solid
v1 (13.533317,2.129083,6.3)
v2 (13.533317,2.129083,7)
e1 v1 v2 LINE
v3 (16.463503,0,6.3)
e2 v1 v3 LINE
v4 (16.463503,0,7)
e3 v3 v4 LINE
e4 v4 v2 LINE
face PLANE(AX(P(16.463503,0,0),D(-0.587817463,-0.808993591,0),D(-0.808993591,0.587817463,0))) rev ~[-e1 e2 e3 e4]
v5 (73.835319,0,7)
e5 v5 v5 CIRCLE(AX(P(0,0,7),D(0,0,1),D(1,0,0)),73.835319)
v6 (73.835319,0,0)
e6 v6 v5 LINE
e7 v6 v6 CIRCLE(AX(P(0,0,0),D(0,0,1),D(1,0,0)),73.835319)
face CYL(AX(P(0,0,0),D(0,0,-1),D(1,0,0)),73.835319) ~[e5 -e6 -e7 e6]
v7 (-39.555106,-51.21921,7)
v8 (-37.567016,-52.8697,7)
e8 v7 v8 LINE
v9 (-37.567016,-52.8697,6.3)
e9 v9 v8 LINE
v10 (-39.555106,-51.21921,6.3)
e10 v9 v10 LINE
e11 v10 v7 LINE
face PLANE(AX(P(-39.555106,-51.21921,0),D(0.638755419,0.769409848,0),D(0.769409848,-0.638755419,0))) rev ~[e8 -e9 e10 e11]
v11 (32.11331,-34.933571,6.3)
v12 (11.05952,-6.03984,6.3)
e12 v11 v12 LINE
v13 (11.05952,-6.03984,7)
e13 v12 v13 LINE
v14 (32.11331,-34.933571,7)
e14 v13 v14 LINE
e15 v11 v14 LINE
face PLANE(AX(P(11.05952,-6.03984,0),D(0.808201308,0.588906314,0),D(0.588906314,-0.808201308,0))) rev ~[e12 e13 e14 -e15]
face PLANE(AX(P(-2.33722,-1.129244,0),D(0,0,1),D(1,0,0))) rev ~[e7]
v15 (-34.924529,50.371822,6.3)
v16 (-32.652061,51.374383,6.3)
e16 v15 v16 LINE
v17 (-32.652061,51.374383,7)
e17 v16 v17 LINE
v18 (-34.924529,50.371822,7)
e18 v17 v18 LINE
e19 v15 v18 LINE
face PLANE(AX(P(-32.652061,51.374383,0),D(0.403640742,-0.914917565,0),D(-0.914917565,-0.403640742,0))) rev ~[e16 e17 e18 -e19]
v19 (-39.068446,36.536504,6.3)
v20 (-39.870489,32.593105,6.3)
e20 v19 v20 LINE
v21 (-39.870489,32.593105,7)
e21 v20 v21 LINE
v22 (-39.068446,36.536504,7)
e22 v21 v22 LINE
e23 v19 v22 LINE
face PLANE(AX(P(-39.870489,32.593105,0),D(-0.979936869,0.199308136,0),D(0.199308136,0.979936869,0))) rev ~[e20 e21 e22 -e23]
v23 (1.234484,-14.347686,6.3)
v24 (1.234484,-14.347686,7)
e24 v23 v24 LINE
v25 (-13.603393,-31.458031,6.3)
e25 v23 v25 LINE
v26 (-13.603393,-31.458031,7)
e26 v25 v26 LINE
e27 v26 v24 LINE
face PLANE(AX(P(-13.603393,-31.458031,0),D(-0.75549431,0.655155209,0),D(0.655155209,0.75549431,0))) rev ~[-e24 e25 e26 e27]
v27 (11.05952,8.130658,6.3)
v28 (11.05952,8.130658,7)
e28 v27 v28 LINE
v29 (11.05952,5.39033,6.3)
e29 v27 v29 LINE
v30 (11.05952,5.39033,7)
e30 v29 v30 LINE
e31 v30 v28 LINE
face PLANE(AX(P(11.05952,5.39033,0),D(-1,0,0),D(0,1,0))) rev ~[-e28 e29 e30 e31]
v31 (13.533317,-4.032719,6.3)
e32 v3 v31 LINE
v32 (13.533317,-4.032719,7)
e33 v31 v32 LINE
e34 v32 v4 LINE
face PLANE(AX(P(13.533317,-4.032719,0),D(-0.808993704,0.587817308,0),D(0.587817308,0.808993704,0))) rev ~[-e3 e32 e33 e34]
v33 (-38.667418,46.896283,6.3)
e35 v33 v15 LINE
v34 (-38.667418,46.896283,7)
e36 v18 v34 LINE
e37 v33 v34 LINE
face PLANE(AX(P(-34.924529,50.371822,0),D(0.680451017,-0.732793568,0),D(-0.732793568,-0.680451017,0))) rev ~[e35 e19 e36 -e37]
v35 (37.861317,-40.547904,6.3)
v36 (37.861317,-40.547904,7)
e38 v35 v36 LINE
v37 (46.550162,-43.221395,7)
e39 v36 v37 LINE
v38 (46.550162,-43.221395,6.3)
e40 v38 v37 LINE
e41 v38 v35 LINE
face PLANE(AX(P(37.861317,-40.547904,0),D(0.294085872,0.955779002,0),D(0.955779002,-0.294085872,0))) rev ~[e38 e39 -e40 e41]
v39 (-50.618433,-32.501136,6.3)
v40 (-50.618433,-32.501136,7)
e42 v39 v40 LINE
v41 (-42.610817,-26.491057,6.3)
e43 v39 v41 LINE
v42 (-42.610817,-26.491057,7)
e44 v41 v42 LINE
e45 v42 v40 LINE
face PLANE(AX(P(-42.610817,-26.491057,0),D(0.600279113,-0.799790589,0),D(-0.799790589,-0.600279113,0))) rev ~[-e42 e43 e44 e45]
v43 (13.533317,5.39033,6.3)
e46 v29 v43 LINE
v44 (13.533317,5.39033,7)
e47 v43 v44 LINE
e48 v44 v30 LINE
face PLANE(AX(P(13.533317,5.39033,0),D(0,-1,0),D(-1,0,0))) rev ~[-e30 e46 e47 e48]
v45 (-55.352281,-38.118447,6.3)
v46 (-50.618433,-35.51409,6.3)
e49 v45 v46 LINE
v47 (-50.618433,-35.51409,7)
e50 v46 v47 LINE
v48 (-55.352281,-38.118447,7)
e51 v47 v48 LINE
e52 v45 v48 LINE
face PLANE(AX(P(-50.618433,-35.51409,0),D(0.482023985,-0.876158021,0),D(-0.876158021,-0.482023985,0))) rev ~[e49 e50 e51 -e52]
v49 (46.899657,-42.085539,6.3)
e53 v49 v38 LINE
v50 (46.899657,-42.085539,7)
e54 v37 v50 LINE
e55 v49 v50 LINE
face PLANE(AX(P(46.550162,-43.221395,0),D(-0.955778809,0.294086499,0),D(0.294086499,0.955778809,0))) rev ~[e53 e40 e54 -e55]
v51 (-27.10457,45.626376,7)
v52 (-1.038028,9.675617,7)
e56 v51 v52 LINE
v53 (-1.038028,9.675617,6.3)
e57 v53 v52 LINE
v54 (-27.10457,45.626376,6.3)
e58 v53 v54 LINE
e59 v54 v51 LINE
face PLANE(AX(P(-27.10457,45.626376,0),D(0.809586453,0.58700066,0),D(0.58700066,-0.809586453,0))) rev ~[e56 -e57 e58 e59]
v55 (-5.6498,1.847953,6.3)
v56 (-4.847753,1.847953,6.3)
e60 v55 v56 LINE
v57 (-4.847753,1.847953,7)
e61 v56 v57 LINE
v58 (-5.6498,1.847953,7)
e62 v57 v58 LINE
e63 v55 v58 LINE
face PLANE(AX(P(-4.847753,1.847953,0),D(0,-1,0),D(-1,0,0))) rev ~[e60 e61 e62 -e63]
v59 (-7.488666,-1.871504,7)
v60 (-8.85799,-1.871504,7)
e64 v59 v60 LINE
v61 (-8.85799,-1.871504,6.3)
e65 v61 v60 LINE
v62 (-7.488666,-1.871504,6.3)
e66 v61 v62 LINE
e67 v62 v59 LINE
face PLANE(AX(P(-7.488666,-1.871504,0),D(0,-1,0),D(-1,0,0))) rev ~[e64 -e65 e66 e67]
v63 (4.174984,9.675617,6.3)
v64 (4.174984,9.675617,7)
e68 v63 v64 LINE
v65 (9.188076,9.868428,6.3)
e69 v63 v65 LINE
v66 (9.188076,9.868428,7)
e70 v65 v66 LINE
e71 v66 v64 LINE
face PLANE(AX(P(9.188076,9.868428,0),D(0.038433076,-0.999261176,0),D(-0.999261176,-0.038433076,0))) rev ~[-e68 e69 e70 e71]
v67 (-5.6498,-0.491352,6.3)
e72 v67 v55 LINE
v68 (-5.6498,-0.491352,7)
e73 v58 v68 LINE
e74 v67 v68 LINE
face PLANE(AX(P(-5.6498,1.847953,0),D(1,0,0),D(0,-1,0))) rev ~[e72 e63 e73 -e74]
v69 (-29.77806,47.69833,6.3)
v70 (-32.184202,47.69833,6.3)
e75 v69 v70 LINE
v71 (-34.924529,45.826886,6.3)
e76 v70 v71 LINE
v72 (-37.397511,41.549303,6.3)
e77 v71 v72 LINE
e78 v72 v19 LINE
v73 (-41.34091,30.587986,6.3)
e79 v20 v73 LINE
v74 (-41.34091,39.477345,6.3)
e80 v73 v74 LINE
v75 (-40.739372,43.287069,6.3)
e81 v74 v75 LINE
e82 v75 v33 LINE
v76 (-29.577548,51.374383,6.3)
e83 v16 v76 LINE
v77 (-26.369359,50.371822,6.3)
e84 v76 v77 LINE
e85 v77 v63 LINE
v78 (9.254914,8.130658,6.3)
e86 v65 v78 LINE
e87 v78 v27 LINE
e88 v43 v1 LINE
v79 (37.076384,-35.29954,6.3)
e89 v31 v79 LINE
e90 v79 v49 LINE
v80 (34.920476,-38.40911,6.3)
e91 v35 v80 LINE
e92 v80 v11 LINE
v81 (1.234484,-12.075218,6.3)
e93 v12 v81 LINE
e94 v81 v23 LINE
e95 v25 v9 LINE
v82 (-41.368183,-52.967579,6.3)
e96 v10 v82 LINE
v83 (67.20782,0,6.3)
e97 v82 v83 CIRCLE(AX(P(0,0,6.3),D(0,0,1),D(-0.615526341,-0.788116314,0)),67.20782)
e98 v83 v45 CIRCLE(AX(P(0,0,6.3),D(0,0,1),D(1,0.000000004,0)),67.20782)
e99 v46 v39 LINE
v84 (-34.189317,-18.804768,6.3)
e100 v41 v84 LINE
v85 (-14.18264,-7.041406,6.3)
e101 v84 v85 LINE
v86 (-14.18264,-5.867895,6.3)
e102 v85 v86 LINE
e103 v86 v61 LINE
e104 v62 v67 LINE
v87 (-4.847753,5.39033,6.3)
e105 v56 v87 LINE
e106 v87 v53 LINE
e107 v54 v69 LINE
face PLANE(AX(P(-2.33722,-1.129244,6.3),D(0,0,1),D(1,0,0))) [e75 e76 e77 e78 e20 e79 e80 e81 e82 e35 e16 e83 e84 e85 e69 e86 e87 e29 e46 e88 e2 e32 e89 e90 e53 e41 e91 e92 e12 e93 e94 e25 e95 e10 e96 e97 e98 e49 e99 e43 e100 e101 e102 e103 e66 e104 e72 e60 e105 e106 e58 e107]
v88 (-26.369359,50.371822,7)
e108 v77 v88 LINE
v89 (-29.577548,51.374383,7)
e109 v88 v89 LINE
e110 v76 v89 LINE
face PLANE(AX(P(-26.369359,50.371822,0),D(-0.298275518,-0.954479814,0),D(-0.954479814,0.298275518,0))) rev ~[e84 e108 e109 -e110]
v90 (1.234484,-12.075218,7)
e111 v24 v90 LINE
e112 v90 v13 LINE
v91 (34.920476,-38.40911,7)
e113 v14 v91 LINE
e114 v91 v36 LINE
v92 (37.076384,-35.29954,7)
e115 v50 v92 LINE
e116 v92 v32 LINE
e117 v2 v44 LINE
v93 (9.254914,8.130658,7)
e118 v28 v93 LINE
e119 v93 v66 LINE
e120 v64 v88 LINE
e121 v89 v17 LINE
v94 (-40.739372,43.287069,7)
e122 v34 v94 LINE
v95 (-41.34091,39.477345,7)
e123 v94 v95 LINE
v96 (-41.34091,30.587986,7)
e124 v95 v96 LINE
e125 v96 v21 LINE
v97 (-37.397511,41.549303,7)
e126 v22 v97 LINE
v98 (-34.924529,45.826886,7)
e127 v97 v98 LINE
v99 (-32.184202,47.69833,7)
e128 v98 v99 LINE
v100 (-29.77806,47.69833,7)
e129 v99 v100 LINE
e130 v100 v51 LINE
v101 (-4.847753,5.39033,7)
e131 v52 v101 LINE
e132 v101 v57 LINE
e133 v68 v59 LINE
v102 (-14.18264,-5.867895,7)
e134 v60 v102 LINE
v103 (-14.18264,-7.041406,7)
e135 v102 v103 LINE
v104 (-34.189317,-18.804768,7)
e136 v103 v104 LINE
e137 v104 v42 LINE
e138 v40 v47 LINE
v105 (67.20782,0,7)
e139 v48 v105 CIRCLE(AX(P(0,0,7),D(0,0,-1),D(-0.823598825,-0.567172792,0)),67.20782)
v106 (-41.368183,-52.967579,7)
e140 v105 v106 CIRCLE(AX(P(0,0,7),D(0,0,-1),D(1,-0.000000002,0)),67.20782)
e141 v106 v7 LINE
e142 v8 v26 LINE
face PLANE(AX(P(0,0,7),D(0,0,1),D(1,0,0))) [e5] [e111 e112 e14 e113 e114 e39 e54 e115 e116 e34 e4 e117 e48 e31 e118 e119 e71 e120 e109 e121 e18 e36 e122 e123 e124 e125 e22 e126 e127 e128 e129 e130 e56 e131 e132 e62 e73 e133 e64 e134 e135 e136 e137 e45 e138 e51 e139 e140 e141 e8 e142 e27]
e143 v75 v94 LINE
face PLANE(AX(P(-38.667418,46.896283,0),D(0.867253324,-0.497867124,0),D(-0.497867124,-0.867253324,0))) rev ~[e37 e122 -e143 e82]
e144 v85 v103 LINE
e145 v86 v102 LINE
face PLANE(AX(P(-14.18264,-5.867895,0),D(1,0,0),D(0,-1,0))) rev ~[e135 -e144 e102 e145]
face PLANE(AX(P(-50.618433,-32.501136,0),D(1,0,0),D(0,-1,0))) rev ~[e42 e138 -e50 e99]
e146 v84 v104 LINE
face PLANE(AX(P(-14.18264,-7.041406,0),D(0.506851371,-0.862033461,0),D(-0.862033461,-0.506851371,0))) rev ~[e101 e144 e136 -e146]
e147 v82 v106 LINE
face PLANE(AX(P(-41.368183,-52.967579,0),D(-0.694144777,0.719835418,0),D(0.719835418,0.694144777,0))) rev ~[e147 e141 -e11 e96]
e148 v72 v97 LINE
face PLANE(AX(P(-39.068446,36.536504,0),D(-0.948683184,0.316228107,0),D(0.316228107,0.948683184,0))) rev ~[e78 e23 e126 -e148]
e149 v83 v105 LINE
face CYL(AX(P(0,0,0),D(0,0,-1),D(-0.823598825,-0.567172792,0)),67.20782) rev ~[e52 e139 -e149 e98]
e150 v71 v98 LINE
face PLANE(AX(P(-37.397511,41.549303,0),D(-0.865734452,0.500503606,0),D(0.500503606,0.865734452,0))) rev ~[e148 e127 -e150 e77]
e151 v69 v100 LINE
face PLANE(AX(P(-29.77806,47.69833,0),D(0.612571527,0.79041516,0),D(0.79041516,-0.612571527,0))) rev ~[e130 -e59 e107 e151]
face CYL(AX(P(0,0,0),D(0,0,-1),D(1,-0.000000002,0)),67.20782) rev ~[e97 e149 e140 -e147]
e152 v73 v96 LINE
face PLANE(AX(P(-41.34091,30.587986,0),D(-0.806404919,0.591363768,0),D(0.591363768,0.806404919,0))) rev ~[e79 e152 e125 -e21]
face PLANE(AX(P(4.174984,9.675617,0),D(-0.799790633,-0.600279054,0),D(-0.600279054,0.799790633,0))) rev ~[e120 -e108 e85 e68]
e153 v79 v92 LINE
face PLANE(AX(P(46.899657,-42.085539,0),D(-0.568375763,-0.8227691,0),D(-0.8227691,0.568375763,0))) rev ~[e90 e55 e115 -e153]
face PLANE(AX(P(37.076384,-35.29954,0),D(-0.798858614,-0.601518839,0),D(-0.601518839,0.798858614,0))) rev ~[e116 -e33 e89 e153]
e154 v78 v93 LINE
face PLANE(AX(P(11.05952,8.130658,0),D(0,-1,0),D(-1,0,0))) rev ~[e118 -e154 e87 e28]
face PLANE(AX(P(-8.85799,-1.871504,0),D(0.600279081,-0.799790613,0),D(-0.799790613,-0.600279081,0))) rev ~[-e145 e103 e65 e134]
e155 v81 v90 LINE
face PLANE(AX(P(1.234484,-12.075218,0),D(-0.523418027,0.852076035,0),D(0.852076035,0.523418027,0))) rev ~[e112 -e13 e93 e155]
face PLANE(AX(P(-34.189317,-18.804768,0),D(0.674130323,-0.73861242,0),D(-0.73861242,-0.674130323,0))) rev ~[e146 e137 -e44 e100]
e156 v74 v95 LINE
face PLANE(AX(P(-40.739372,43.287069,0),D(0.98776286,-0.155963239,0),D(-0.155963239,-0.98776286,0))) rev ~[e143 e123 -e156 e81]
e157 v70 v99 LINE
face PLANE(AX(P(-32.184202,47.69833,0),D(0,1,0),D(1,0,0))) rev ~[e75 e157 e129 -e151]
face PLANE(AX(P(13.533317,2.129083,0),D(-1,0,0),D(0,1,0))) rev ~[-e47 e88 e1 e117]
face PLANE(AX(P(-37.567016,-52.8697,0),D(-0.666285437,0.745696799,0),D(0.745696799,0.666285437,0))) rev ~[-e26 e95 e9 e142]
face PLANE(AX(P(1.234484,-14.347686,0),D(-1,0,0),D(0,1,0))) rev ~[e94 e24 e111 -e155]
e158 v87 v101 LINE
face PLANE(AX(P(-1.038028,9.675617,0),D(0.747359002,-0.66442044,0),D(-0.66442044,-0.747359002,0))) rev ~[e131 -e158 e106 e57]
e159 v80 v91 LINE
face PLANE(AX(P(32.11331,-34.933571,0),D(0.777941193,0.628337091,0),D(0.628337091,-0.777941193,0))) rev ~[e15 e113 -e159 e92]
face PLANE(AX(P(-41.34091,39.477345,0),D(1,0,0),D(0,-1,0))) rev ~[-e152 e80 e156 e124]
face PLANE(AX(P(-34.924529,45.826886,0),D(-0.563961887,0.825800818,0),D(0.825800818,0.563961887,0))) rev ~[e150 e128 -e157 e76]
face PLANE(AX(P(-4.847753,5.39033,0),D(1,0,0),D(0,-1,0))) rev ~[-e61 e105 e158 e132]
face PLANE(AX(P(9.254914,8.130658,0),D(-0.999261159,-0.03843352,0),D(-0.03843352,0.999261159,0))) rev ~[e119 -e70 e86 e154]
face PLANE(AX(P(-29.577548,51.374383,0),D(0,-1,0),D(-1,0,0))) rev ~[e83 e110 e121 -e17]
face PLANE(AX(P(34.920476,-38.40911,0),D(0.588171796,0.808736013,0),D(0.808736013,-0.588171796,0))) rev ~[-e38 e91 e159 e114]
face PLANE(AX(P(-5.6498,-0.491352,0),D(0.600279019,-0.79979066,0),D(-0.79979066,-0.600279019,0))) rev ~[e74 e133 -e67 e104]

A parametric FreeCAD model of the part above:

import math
import FreeCAD as App
import Part
import Sketcher
from FreeCAD import Vector
Q = App.Units.Quantity

doc = App.newDocument("Part")
params = doc.addObject("Spreadsheet::Sheet", "Params")
for row, (alias, value) in enumerate([
    ("pad1_length", "7 mm"),
    ("pad2_length", "6.3 mm"),
], start=1):
    params.set(f"A{row}", alias)
    params.set(f"B{row}", "=" + value)
    params.setAlias(f"B{row}", alias)

body = doc.addObject("PartDesign::Body", "Body")

sketch1 = body.newObject("Sketcher::SketchObject", "Sketch")
sketch1.AttachmentSupport = (doc.getObject("XY_Plane"), [""])
sketch1.MapMode = "FlatFace"
sketch1.addGeometry(Part.Circle(Vector(0, 0, 0), Vector(0, 0, 1), 73.835319), False)
sketch1.addGeometry(Part.ArcOfCircle(Part.Circle(Vector(0, 0, 0), Vector(0, 0, 1), 67.20782), math.radians(-127.990175), math.radians(0)), False)
sketch1.addGeometry(Part.LineSegment(Vector(-41.368183, -52.967579, 0), Vector(-39.555106, -51.21921, 0)), False)
sketch1.addGeometry(Part.LineSegment(Vector(-39.555106, -51.21921, 0), Vector(-37.567016, -52.8697, 0)), False)
sketch1.addGeometry(Part.LineSegment(Vector(-37.567016, -52.8697, 0), Vector(-13.603393, -31.458031, 0)), False)
sketch1.addGeometry(Part.LineSegment(Vector(-13.603393, -31.458031, 0), Vector(1.234484, -14.347686, 0)), False)
sketch1.addGeometry(Part.LineSegment(Vector(1.234484, -14.347686, 0), Vector(1.234484, -12.075218, 0)), False)
sketch1.addGeometry(Part.LineSegment(Vector(1.234484, -12.075218, 0), Vector(11.05952, -6.03984, 0)), False)
sketch1.addGeometry(Part.LineSegment(Vector(11.05952, -6.03984, 0), Vector(32.11331, -34.933571, 0)), False)
sketch1.addGeometry(Part.LineSegment(Vector(32.11331, -34.933571, 0), Vector(34.920476, -38.40911, 0)), False)
sketch1.addGeometry(Part.LineSegment(Vector(34.920476, -38.40911, 0), Vector(37.861317, -40.547904, 0)), False)
sketch1.addGeometry(Part.LineSegment(Vector(37.861317, -40.547904, 0), Vector(46.550162, -43.221395, 0)), False)
sketch1.addGeometry(Part.LineSegment(Vector(46.550162, -43.221395, 0), Vector(46.899657, -42.085539, 0)), False)
sketch1.addGeometry(Part.LineSegment(Vector(46.899657, -42.085539, 0), Vector(37.076384, -35.29954, 0)), False)
sketch1.addGeometry(Part.LineSegment(Vector(37.076384, -35.29954, 0), Vector(13.533317, -4.032719, 0)), False)
sketch1.addGeometry(Part.LineSegment(Vector(13.533317, -4.032719, 0), Vector(16.463503, 0, 0)), False)
sketch1.addGeometry(Part.LineSegment(Vector(16.463503, 0, 0), Vector(13.533317, 2.129083, 0)), False)
sketch1.addGeometry(Part.LineSegment(Vector(13.533317, 2.129083, 0), Vector(13.533317, 5.39033, 0)), False)
sketch1.addGeometry(Part.LineSegment(Vector(13.533317, 5.39033, 0), Vector(11.05952, 5.39033, 0)), False)
sketch1.addGeometry(Part.LineSegment(Vector(11.05952, 5.39033, 0), Vector(11.05952, 8.130658, 0)), False)
sketch1.addGeometry(Part.LineSegment(Vector(11.05952, 8.130658, 0), Vector(9.254914, 8.130658, 0)), False)
sketch1.addGeometry(Part.LineSegment(Vector(9.254914, 8.130658, 0), Vector(9.188076, 9.868428, 0)), False)
sketch1.addGeometry(Part.LineSegment(Vector(9.188076, 9.868428, 0), Vector(4.174984, 9.675617, 0)), False)
sketch1.addGeometry(Part.LineSegment(Vector(4.174984, 9.675617, 0), Vector(-26.369359, 50.371822, 0)), False)
sketch1.addGeometry(Part.LineSegment(Vector(-26.369359, 50.371822, 0), Vector(-29.577548, 51.374383, 0)), False)
sketch1.addGeometry(Part.LineSegment(Vector(-29.577548, 51.374383, 0), Vector(-32.652061, 51.374383, 0)), False)
sketch1.addGeometry(Part.LineSegment(Vector(-32.652061, 51.374383, 0), Vector(-34.924529, 50.371822, 0)), False)
sketch1.addGeometry(Part.LineSegment(Vector(-34.924529, 50.371822, 0), Vector(-38.667418, 46.896283, 0)), False)
sketch1.addGeometry(Part.LineSegment(Vector(-38.667418, 46.896283, 0), Vector(-40.739372, 43.287069, 0)), False)
sketch1.addGeometry(Part.LineSegment(Vector(-40.739372, 43.287069, 0), Vector(-41.34091, 39.477345, 0)), False)
sketch1.addGeometry(Part.LineSegment(Vector(-41.34091, 39.477345, 0), Vector(-41.34091, 30.587986, 0)), False)
sketch1.addGeometry(Part.LineSegment(Vector(-41.34091, 30.587986, 0), Vector(-39.870489, 32.593105, 0)), False)
sketch1.addGeometry(Part.LineSegment(Vector(-39.870489, 32.593105, 0), Vector(-39.068446, 36.536504, 0)), False)
sketch1.addGeometry(Part.LineSegment(Vector(-39.068446, 36.536504, 0), Vector(-37.397511, 41.549303, 0)), False)
sketch1.addGeometry(Part.LineSegment(Vector(-37.397511, 41.549303, 0), Vector(-34.924529, 45.826886, 0)), False)
sketch1.addGeometry(Part.LineSegment(Vector(-34.924529, 45.826886, 0), Vector(-32.184202, 47.69833, 0)), False)
sketch1.addGeometry(Part.LineSegment(Vector(-32.184202, 47.69833, 0), Vector(-29.77806, 47.69833, 0)), False)
sketch1.addGeometry(Part.LineSegment(Vector(-29.77806, 47.69833, 0), Vector(-27.10457, 45.626376, 0)), False)
sketch1.addGeometry(Part.LineSegment(Vector(-27.10457, 45.626376, 0), Vector(-1.038028, 9.675617, 0)), False)
sketch1.addGeometry(Part.LineSegment(Vector(-1.038028, 9.675617, 0), Vector(-4.847753, 5.39033, 0)), False)
sketch1.addGeometry(Part.LineSegment(Vector(-4.847753, 5.39033, 0), Vector(-4.847753, 1.847953, 0)), False)
sketch1.addGeometry(Part.LineSegment(Vector(-4.847753, 1.847953, 0), Vector(-5.6498, 1.847953, 0)), False)
sketch1.addGeometry(Part.LineSegment(Vector(-5.6498, 1.847953, 0), Vector(-5.6498, -0.491352, 0)), False)
sketch1.addGeometry(Part.LineSegment(Vector(-5.6498, -0.491352, 0), Vector(-7.488666, -1.871504, 0)), False)
sketch1.addGeometry(Part.LineSegment(Vector(-7.488666, -1.871504, 0), Vector(-8.85799, -1.871504, 0)), False)
sketch1.addGeometry(Part.LineSegment(Vector(-8.85799, -1.871504, 0), Vector(-14.18264, -5.867895, 0)), False)
sketch1.addGeometry(Part.LineSegment(Vector(-14.18264, -5.867895, 0), Vector(-14.18264, -7.041406, 0)), False)
sketch1.addGeometry(Part.LineSegment(Vector(-14.18264, -7.041406, 0), Vector(-34.189317, -18.804768, 0)), False)
sketch1.addGeometry(Part.LineSegment(Vector(-34.189317, -18.804768, 0), Vector(-42.610817, -26.491057, 0)), False)
sketch1.addGeometry(Part.LineSegment(Vector(-42.610817, -26.491057, 0), Vector(-50.618433, -32.501136, 0)), False)
sketch1.addGeometry(Part.LineSegment(Vector(-50.618433, -32.501136, 0), Vector(-50.618433, -35.51409, 0)), False)
sketch1.addGeometry(Part.LineSegment(Vector(-50.618433, -35.51409, 0), Vector(-55.352281, -38.118447, 0)), False)
sketch1.addGeometry(Part.ArcOfCircle(Part.Circle(Vector(0, 0, 0), Vector(0, 0, 1), 67.20782), math.radians(0), math.radians(214.55331)), False)
sketch1.addConstraint(Sketcher.Constraint("Coincident", 1, 1, 2, 1))
sketch1.addConstraint(Sketcher.Constraint("Coincident", 2, 2, 3, 1))
sketch1.addConstraint(Sketcher.Constraint("Coincident", 3, 2, 4, 1))
sketch1.addConstraint(Sketcher.Constraint("Coincident", 4, 2, 5, 1))
sketch1.addConstraint(Sketcher.Constraint("Coincident", 5, 2, 6, 1))
sketch1.addConstraint(Sketcher.Constraint("Coincident", 6, 2, 7, 1))
sketch1.addConstraint(Sketcher.Constraint("Coincident", 7, 2, 8, 1))
sketch1.addConstraint(Sketcher.Constraint("Coincident", 8, 2, 9, 1))
sketch1.addConstraint(Sketcher.Constraint("Coincident", 9, 2, 10, 1))
sketch1.addConstraint(Sketcher.Constraint("Coincident", 10, 2, 11, 1))
sketch1.addConstraint(Sketcher.Constraint("Coincident", 11, 2, 12, 1))
sketch1.addConstraint(Sketcher.Constraint("Coincident", 12, 2, 13, 1))
sketch1.addConstraint(Sketcher.Constraint("Coincident", 13, 2, 14, 1))
sketch1.addConstraint(Sketcher.Constraint("Coincident", 14, 2, 15, 1))
sketch1.addConstraint(Sketcher.Constraint("Coincident", 15, 2, 16, 1))
sketch1.addConstraint(Sketcher.Constraint("Coincident", 16, 2, 17, 1))
sketch1.addConstraint(Sketcher.Constraint("Coincident", 17, 2, 18, 1))
sketch1.addConstraint(Sketcher.Constraint("Coincident", 18, 2, 19, 1))
sketch1.addConstraint(Sketcher.Constraint("Coincident", 19, 2, 20, 1))
sketch1.addConstraint(Sketcher.Constraint("Coincident", 20, 2, 21, 1))
sketch1.addConstraint(Sketcher.Constraint("Coincident", 21, 2, 22, 1))
sketch1.addConstraint(Sketcher.Constraint("Coincident", 22, 2, 23, 1))
sketch1.addConstraint(Sketcher.Constraint("Coincident", 23, 2, 24, 1))
sketch1.addConstraint(Sketcher.Constraint("Coincident", 24, 2, 25, 1))
sketch1.addConstraint(Sketcher.Constraint("Coincident", 25, 2, 26, 1))
sketch1.addConstraint(Sketcher.Constraint("Coincident", 26, 2, 27, 1))
sketch1.addConstraint(Sketcher.Constraint("Coincident", 27, 2, 28, 1))
sketch1.addConstraint(Sketcher.Constraint("Coincident", 28, 2, 29, 1))
sketch1.addConstraint(Sketcher.Constraint("Coincident", 29, 2, 30, 1))
sketch1.addConstraint(Sketcher.Constraint("Coincident", 30, 2, 31, 1))
sketch1.addConstraint(Sketcher.Constraint("Coincident", 31, 2, 32, 1))
sketch1.addConstraint(Sketcher.Constraint("Coincident", 32, 2, 33, 1))
sketch1.addConstraint(Sketcher.Constraint("Coincident", 33, 2, 34, 1))
sketch1.addConstraint(Sketcher.Constraint("Coincident", 34, 2, 35, 1))
sketch1.addConstraint(Sketcher.Constraint("Coincident", 35, 2, 36, 1))
sketch1.addConstraint(Sketcher.Constraint("Coincident", 36, 2, 37, 1))
sketch1.addConstraint(Sketcher.Constraint("Coincident", 37, 2, 38, 1))
sketch1.addConstraint(Sketcher.Constraint("Coincident", 38, 2, 39, 1))
sketch1.addConstraint(Sketcher.Constraint("Coincident", 39, 2, 40, 1))
sketch1.addConstraint(Sketcher.Constraint("Coincident", 40, 2, 41, 1))
sketch1.addConstraint(Sketcher.Constraint("Coincident", 41, 2, 42, 1))
sketch1.addConstraint(Sketcher.Constraint("Coincident", 42, 2, 43, 1))
sketch1.addConstraint(Sketcher.Constraint("Coincident", 43, 2, 44, 1))
sketch1.addConstraint(Sketcher.Constraint("Coincident", 44, 2, 45, 1))
sketch1.addConstraint(Sketcher.Constraint("Coincident", 45, 2, 46, 1))
sketch1.addConstraint(Sketcher.Constraint("Coincident", 46, 2, 47, 1))
sketch1.addConstraint(Sketcher.Constraint("Coincident", 47, 2, 48, 1))
sketch1.addConstraint(Sketcher.Constraint("Coincident", 48, 2, 49, 1))
sketch1.addConstraint(Sketcher.Constraint("Coincident", 49, 2, 50, 1))
sketch1.addConstraint(Sketcher.Constraint("Coincident", 50, 2, 51, 1))
sketch1.addConstraint(Sketcher.Constraint("Coincident", 51, 2, 52, 2))
sketch1.addConstraint(Sketcher.Constraint("Coincident", 52, 1, 1, 2))
sketch1.addConstraint(Sketcher.Constraint("Vertical", 6))
sketch1.addConstraint(Sketcher.Constraint("Vertical", 17))
sketch1.addConstraint(Sketcher.Constraint("Horizontal", 18))
sketch1.addConstraint(Sketcher.Constraint("Vertical", 19))
sketch1.addConstraint(Sketcher.Constraint("Horizontal", 20))
sketch1.addConstraint(Sketcher.Constraint("Horizontal", 25))
sketch1.addConstraint(Sketcher.Constraint("Vertical", 30))
sketch1.addConstraint(Sketcher.Constraint("Horizontal", 36))
sketch1.addConstraint(Sketcher.Constraint("Vertical", 40))
sketch1.addConstraint(Sketcher.Constraint("Horizontal", 41))
sketch1.addConstraint(Sketcher.Constraint("Vertical", 42))
sketch1.addConstraint(Sketcher.Constraint("Horizontal", 44))
sketch1.addConstraint(Sketcher.Constraint("Vertical", 46))
sketch1.addConstraint(Sketcher.Constraint("Vertical", 50))
sketch1.addConstraint(Sketcher.Constraint("Coincident", 0, 3, -1, 1))
sketch1.addConstraint(Sketcher.Constraint("Coincident", 1, 3, -1, 1))
sketch1.addConstraint(Sketcher.Constraint("Coincident", 52, 3, -1, 1))
sketch1.addConstraint(Sketcher.Constraint("PointOnObject", 15, 2, -1))
sketch1.addConstraint(Sketcher.Constraint("PointOnObject", 52, 1, -1))
sketch1.addConstraint(Sketcher.Constraint("Diameter", 0, Q("147.670638 mm")))
sketch1.addConstraint(Sketcher.Constraint("Radius", 1, Q("67.20782 mm")))
sketch1.addConstraint(Sketcher.Constraint("DistanceY", 12, 2, 13, 2, Q("6.785999 mm")))
sketch1.addConstraint(Sketcher.Constraint("DistanceX", 25, 2, 36, 2, Q("2.874001 mm")))
sketch1.addConstraint(Sketcher.Constraint("Distance", 22, Q("5.016799 mm")))
sketch1.addConstraint(Sketcher.Constraint("Distance", 27, Q("5.107699 mm")))
sketch1.addConstraint(Sketcher.Constraint("Distance", 47, Q("23.208701 mm")))
sketch1.addConstraint(Sketcher.Constraint("DistanceX", 36, 1, 36, 2, Q("2.406142 mm")))
sketch1.addConstraint(Sketcher.Constraint("DistanceY", 19, 1, 19, 2, Q("2.740328 mm")))
sketch1.addConstraint(Sketcher.Constraint("DistanceY", 30, 2, 30, 1, Q("8.889359 mm")))
sketch1.addConstraint(Sketcher.Constraint("DistanceY", 46, 2, 46, 1, Q("1.173511 mm")))
sketch1.addConstraint(Sketcher.Constraint("DistanceY", 3, 2, -1, 1, Q("52.8697 mm")))
sketch1.addConstraint(Sketcher.Constraint("DistanceX", 41, 2, -1, 1, Q("5.6498 mm")))
sketch1.addConstraint(Sketcher.Constraint("DistanceX", 3, 2, 5, 2, Q("38.8015 mm")))
sketch1.addConstraint(Sketcher.Constraint("DistanceY", 12, 2, 7, 2, Q("36.045699 mm")))
sketch1.addConstraint(Sketcher.Constraint("DistanceY", 6, 2, 14, 2, Q("8.042499 mm")))
sketch1.addConstraint(Sketcher.Constraint("DistanceY", 14, 2, 16, 2, Q("6.161802 mm")))
sketch1.addConstraint(Sketcher.Constraint("DistanceY", 27, 2, 25, 2, Q("4.4781 mm")))
sketch1.addConstraint(Sketcher.Constraint("DistanceY", 31, 2, 32, 2, Q("3.943399 mm")))
sketch1.addConstraint(Sketcher.Constraint("DistanceX", 29, 2, 33, 2, Q("3.943399 mm")))
sketch1.addConstraint(Sketcher.Constraint("DistanceY", 32, 2, 33, 2, Q("5.012799 mm")))
sketch1.addConstraint(Sketcher.Constraint("DistanceX", 36, 2, 23, 2, Q("3.408701 mm")))
sketch1.addConstraint(Sketcher.Constraint("DistanceX", 48, 2, 47, 2, Q("8.4215 mm")))
sketch1.addConstraint(Sketcher.Constraint("DistanceX", 48, 2, 3, 2, Q("5.043801 mm")))
sketch1.addConstraint(Sketcher.Constraint("Distance", 2, Q("2.518738 mm")))
sketch1.addConstraint(Sketcher.Constraint("Distance", 4, Q("32.13588 mm")))
sketch1.addConstraint(Sketcher.Constraint("Distance", 5, Q("22.647881 mm")))
sketch1.addConstraint(Sketcher.Constraint("Distance", 8, Q("35.750661 mm")))
sketch1.addConstraint(Sketcher.Constraint("Distance", 9, Q("4.467611 mm")))
sketch1.addConstraint(Sketcher.Constraint("Distance", 11, Q("9.090852 mm")))
sketch1.addConstraint(Sketcher.Constraint("Distance", 12, Q("1.188409 mm")))
sketch1.addConstraint(Sketcher.Constraint("Distance", 15, Q("4.984858 mm")))
sketch1.addConstraint(Sketcher.Constraint("Distance", 24, Q("3.361191 mm")))
sketch1.addConstraint(Sketcher.Constraint("Distance", 28, Q("4.161661 mm")))
sketch1.addConstraint(Sketcher.Constraint("Distance", 29, Q("3.856922 mm")))
sketch1.addConstraint(Sketcher.Constraint("Distance", 31, Q("2.486492 mm")))
sketch1.addConstraint(Sketcher.Constraint("Distance", 49, Q("10.012141 mm")))
sketch1.addConstraint(Sketcher.Constraint("Distance", 51, Q("5.402961 mm")))
sketch1.addConstraint(Sketcher.Constraint("DistanceX", 18, 2, 18, 1, Q("2.473797 mm")))
sketch1.addConstraint(Sketcher.Constraint("DistanceX", 20, 2, 20, 1, Q("1.804606 mm")))
sketch1.addConstraint(Sketcher.Constraint("DistanceX", 25, 2, 25, 1, Q("3.074513 mm")))
sketch1.addConstraint(Sketcher.Constraint("DistanceX", 41, 2, 41, 1, Q("0.802047 mm")))
sketch1.addConstraint(Sketcher.Constraint("DistanceX", 44, 2, 44, 1, Q("1.369324 mm")))
sketch1.addConstraint(Sketcher.Constraint("DistanceY", 6, 1, 6, 2, Q("2.272468 mm")))
sketch1.addConstraint(Sketcher.Constraint("DistanceY", 17, 1, 17, 2, Q("3.261247 mm")))
sketch1.addConstraint(Sketcher.Constraint("DistanceY", 40, 2, 40, 1, Q("3.542377 mm")))
sketch1.addConstraint(Sketcher.Constraint("DistanceY", 42, 2, 42, 1, Q("2.339305 mm")))
sketch1.addConstraint(Sketcher.Constraint("DistanceY", 50, 2, 50, 1, Q("3.012954 mm")))
sketch1.addConstraint(Sketcher.Constraint("DistanceY", 1, 1, -1, 1, Q("52.967579 mm")))
sketch1.addConstraint(Sketcher.Constraint("DistanceY", 2, 2, -1, 1, Q("51.21921 mm")))
sketch1.addConstraint(Sketcher.Constraint("DistanceY", 4, 2, -1, 1, Q("31.458031 mm")))
sketch1.addConstraint(Sketcher.Constraint("DistanceX", -1, 1, 7, 2, Q("11.05952 mm")))
sketch1.addConstraint(Sketcher.Constraint("DistanceY", 7, 2, -1, 1, Q("6.03984 mm")))
sketch1.addConstraint(Sketcher.Constraint("DistanceX", -1, 1, 8, 2, Q("32.11331 mm")))
sketch1.addConstraint(Sketcher.Constraint("DistanceY", 9, 2, -1, 1, Q("38.40911 mm")))
sketch1.addConstraint(Sketcher.Constraint("DistanceX", -1, 1, 18, 2, Q("11.05952 mm")))
sketch1.addConstraint(Sketcher.Constraint("DistanceX", 23, 2, -1, 1, Q("26.369359 mm")))
sketch1.addConstraint(Sketcher.Constraint("DistanceX", 26, 2, -1, 1, Q("34.924529 mm")))
sketch1.addConstraint(Sketcher.Constraint("DistanceY", -1, 1, 28, 2, Q("43.287069 mm")))
sketch1.addConstraint(Sketcher.Constraint("DistanceX", 29, 2, -1, 1, Q("41.34091 mm")))
sketch1.addConstraint(Sketcher.Constraint("DistanceX", 31, 2, -1, 1, Q("39.870489 mm")))
sketch1.addConstraint(Sketcher.Constraint("DistanceX", 34, 2, -1, 1, Q("34.924529 mm")))
sketch1.addConstraint(Sketcher.Constraint("DistanceY", -1, 1, 35, 2, Q("47.69833 mm")))
sketch1.addConstraint(Sketcher.Constraint("DistanceX", 37, 2, -1, 1, Q("27.10457 mm")))
sketch1.addConstraint(Sketcher.Constraint("DistanceY", -1, 1, 39, 2, Q("5.39033 mm")))
sketch1.addConstraint(Sketcher.Constraint("DistanceX", 44, 2, -1, 1, Q("8.85799 mm")))
sketch1.addConstraint(Sketcher.Constraint("DistanceX", 45, 2, -1, 1, Q("14.18264 mm")))
sketch1.addConstraint(Sketcher.Constraint("DistanceY", 50, 2, -1, 1, Q("35.51409 mm")))
sketch1.addConstraint(Sketcher.Constraint("DistanceX", 51, 2, -1, 1, Q("55.352281 mm")))
sketch1.addConstraint(Sketcher.Constraint("DistanceX", 2, 2, 3, 2, Q("1.98809 mm")))
sketch1.addConstraint(Sketcher.Constraint("DistanceX", 9, 2, 10, 2, Q("2.940841 mm")))
sketch1.addConstraint(Sketcher.Constraint("DistanceY", 10, 2, 5, 2, Q("26.200218 mm")))
sketch1.addConstraint(Sketcher.Constraint("DistanceY", 11, 2, 10, 2, Q("2.673491 mm")))
sketch1.addConstraint(Sketcher.Constraint("DistanceX", 13, 2, 11, 2, Q("9.473778 mm")))
sketch1.addConstraint(Sketcher.Constraint("DistanceX", 20, 2, 15, 2, Q("7.208589 mm")))
sketch1.addConstraint(Sketcher.Constraint("DistanceY", 20, 2, 21, 2, Q("1.73777 mm")))
sketch1.addConstraint(Sketcher.Constraint("DistanceX", 21, 2, 17, 2, Q("4.345241 mm")))
sketch1.addConstraint(Sketcher.Constraint("DistanceY", 22, 2, 21, 2, Q("0.192811 mm")))
sketch1.addConstraint(Sketcher.Constraint("DistanceY", 26, 2, 25, 2, Q("1.002561 mm")))
sketch1.addConstraint(Sketcher.Constraint("DistanceX", 28, 2, 25, 2, Q("8.087311 mm")))
sketch1.addConstraint(Sketcher.Constraint("DistanceX", 32, 2, 27, 2, Q("0.401028 mm")))
sketch1.addConstraint(Sketcher.Constraint("DistanceY", 37, 2, 34, 2, Q("0.20051 mm")))
sketch1.addConstraint(Sketcher.Constraint("DistanceX", 38, 2, 1, 3, Q("1.038028 mm")))
sketch1.addConstraint(Sketcher.Constraint("DistanceY", 38, 2, 21, 2, Q("0.192811 mm")))
sketch1.addConstraint(Sketcher.Constraint("DistanceY", 45, 2, 44, 2, Q("3.996391 mm")))
sketch1.addConstraint(Sketcher.Constraint("DistanceY", 46, 2, 41, 2, Q("8.889359 mm")))
sketch1.addConstraint(Sketcher.Constraint("Distance", 34, Q("4.940987 mm")))
pad1 = body.newObject("PartDesign::Pad", "Pad")
pad1.Profile = sketch1
pad1.setExpression("Length", "Params.pad1_length")

sketch2 = body.newObject("Sketcher::SketchObject", "Sketch001")
sketch2.AttachmentSupport = (doc.getObject("XY_Plane"), [""])
sketch2.MapMode = "FlatFace"
sketch2.addGeometry(Part.ArcOfCircle(Part.Circle(Vector(0, 0, 0), Vector(0, 0, 1), 67.20782), math.radians(-127.990175), math.radians(0)), False)
sketch2.addGeometry(Part.ArcOfCircle(Part.Circle(Vector(0, 0, 0), Vector(0, 0, 1), 67.20782), math.radians(0), math.radians(214.55331)), False)
sketch2.addGeometry(Part.LineSegment(Vector(-55.352281, -38.118447, 0), Vector(-50.618433, -35.51409, 0)), False)
sketch2.addGeometry(Part.LineSegment(Vector(-50.618433, -35.51409, 0), Vector(-50.618433, -32.501136, 0)), False)
sketch2.addGeometry(Part.LineSegment(Vector(-50.618433, -32.501136, 0), Vector(-42.610817, -26.491057, 0)), False)
sketch2.addGeometry(Part.LineSegment(Vector(-42.610817, -26.491057, 0), Vector(-34.189317, -18.804768, 0)), False)
sketch2.addGeometry(Part.LineSegment(Vector(-34.189317, -18.804768, 0), Vector(-14.18264, -7.041406, 0)), False)
sketch2.addGeometry(Part.LineSegment(Vector(-14.18264, -7.041406, 0), Vector(-14.18264, -5.867895, 0)), False)
sketch2.addGeometry(Part.LineSegment(Vector(-14.18264, -5.867895, 0), Vector(-8.85799, -1.871504, 0)), False)
sketch2.addGeometry(Part.LineSegment(Vector(-8.85799, -1.871504, 0), Vector(-7.488666, -1.871504, 0)), False)
sketch2.addGeometry(Part.LineSegment(Vector(-7.488666, -1.871504, 0), Vector(-5.6498, -0.491352, 0)), False)
sketch2.addGeometry(Part.LineSegment(Vector(-5.6498, -0.491352, 0), Vector(-5.6498, 1.847953, 0)), False)
sketch2.addGeometry(Part.LineSegment(Vector(-5.6498, 1.847953, 0), Vector(-4.847753, 1.847953, 0)), False)
sketch2.addGeometry(Part.LineSegment(Vector(-4.847753, 1.847953, 0), Vector(-4.847753, 5.39033, 0)), False)
sketch2.addGeometry(Part.LineSegment(Vector(-4.847753, 5.39033, 0), Vector(-1.038028, 9.675617, 0)), False)
sketch2.addGeometry(Part.LineSegment(Vector(-1.038028, 9.675617, 0), Vector(-27.10457, 45.626376, 0)), False)
sketch2.addGeometry(Part.LineSegment(Vector(-27.10457, 45.626376, 0), Vector(-29.77806, 47.69833, 0)), False)
sketch2.addGeometry(Part.LineSegment(Vector(-29.77806, 47.69833, 0), Vector(-32.184202, 47.69833, 0)), False)
sketch2.addGeometry(Part.LineSegment(Vector(-32.184202, 47.69833, 0), Vector(-34.924529, 45.826886, 0)), False)
sketch2.addGeometry(Part.LineSegment(Vector(-34.924529, 45.826886, 0), Vector(-37.397511, 41.549303, 0)), False)
sketch2.addGeometry(Part.LineSegment(Vector(-37.397511, 41.549303, 0), Vector(-39.068446, 36.536504, 0)), False)
sketch2.addGeometry(Part.LineSegment(Vector(-39.068446, 36.536504, 0), Vector(-39.870489, 32.593105, 0)), False)
sketch2.addGeometry(Part.LineSegment(Vector(-39.870489, 32.593105, 0), Vector(-41.34091, 30.587986, 0)), False)
sketch2.addGeometry(Part.LineSegment(Vector(-41.34091, 30.587986, 0), Vector(-41.34091, 39.477345, 0)), False)
sketch2.addGeometry(Part.LineSegment(Vector(-41.34091, 39.477345, 0), Vector(-40.739372, 43.287069, 0)), False)
sketch2.addGeometry(Part.LineSegment(Vector(-40.739372, 43.287069, 0), Vector(-38.667418, 46.896283, 0)), False)
sketch2.addGeometry(Part.LineSegment(Vector(-38.667418, 46.896283, 0), Vector(-34.924529, 50.371822, 0)), False)
sketch2.addGeometry(Part.LineSegment(Vector(-34.924529, 50.371822, 0), Vector(-32.652061, 51.374383, 0)), False)
sketch2.addGeometry(Part.LineSegment(Vector(-32.652061, 51.374383, 0), Vector(-29.577548, 51.374383, 0)), False)
sketch2.addGeometry(Part.LineSegment(Vector(-29.577548, 51.374383, 0), Vector(-26.369359, 50.371822, 0)), False)
sketch2.addGeometry(Part.LineSegment(Vector(-26.369359, 50.371822, 0), Vector(4.174984, 9.675617, 0)), False)
sketch2.addGeometry(Part.LineSegment(Vector(4.174984, 9.675617, 0), Vector(9.188076, 9.868428, 0)), False)
sketch2.addGeometry(Part.LineSegment(Vector(9.188076, 9.868428, 0), Vector(9.254914, 8.130658, 0)), False)
sketch2.addGeometry(Part.LineSegment(Vector(9.254914, 8.130658, 0), Vector(11.05952, 8.130658, 0)), False)
sketch2.addGeometry(Part.LineSegment(Vector(11.05952, 8.130658, 0), Vector(11.05952, 5.39033, 0)), False)
sketch2.addGeometry(Part.LineSegment(Vector(11.05952, 5.39033, 0), Vector(13.533317, 5.39033, 0)), False)
sketch2.addGeometry(Part.LineSegment(Vector(13.533317, 5.39033, 0), Vector(13.533317, 2.129083, 0)), False)
sketch2.addGeometry(Part.LineSegment(Vector(13.533317, 2.129083, 0), Vector(16.463503, 0, 0)), False)
sketch2.addGeometry(Part.LineSegment(Vector(16.463503, 0, 0), Vector(13.533317, -4.032719, 0)), False)
sketch2.addGeometry(Part.LineSegment(Vector(13.533317, -4.032719, 0), Vector(37.076384, -35.29954, 0)), False)
sketch2.addGeometry(Part.LineSegment(Vector(37.076384, -35.29954, 0), Vector(46.899657, -42.085539, 0)), False)
sketch2.addGeometry(Part.LineSegment(Vector(46.899657, -42.085539, 0), Vector(46.550162, -43.221395, 0)), False)
sketch2.addGeometry(Part.LineSegment(Vector(46.550162, -43.221395, 0), Vector(37.861317, -40.547904, 0)), False)
sketch2.addGeometry(Part.LineSegment(Vector(37.861317, -40.547904, 0), Vector(34.920476, -38.40911, 0)), False)
sketch2.addGeometry(Part.LineSegment(Vector(34.920476, -38.40911, 0), Vector(32.11331, -34.933571, 0)), False)
sketch2.addGeometry(Part.LineSegment(Vector(32.11331, -34.933571, 0), Vector(11.05952, -6.03984, 0)), False)
sketch2.addGeometry(Part.LineSegment(Vector(11.05952, -6.03984, 0), Vector(1.234484, -12.075218, 0)), False)
sketch2.addGeometry(Part.LineSegment(Vector(1.234484, -12.075218, 0), Vector(1.234484, -14.347686, 0)), False)
sketch2.addGeometry(Part.LineSegment(Vector(1.234484, -14.347686, 0), Vector(-13.603393, -31.458031, 0)), False)
sketch2.addGeometry(Part.LineSegment(Vector(-13.603393, -31.458031, 0), Vector(-37.567016, -52.8697, 0)), False)
sketch2.addGeometry(Part.LineSegment(Vector(-37.567016, -52.8697, 0), Vector(-39.555106, -51.21921, 0)), False)
sketch2.addGeometry(Part.LineSegment(Vector(-39.555106, -51.21921, 0), Vector(-41.368183, -52.967579, 0)), False)
sketch2.addConstraint(Sketcher.Constraint("Tangent", 0, 2, 1, 1))
sketch2.addConstraint(Sketcher.Constraint("Coincident", 1, 2, 2, 1))
sketch2.addConstraint(Sketcher.Constraint("Coincident", 2, 2, 3, 1))
sketch2.addConstraint(Sketcher.Constraint("Coincident", 3, 2, 4, 1))
sketch2.addConstraint(Sketcher.Constraint("Coincident", 4, 2, 5, 1))
sketch2.addConstraint(Sketcher.Constraint("Coincident", 5, 2, 6, 1))
sketch2.addConstraint(Sketcher.Constraint("Coincident", 6, 2, 7, 1))
sketch2.addConstraint(Sketcher.Constraint("Coincident", 7, 2, 8, 1))
sketch2.addConstraint(Sketcher.Constraint("Coincident", 8, 2, 9, 1))
sketch2.addConstraint(Sketcher.Constraint("Coincident", 9, 2, 10, 1))
sketch2.addConstraint(Sketcher.Constraint("Coincident", 10, 2, 11, 1))
sketch2.addConstraint(Sketcher.Constraint("Coincident", 11, 2, 12, 1))
sketch2.addConstraint(Sketcher.Constraint("Coincident", 12, 2, 13, 1))
sketch2.addConstraint(Sketcher.Constraint("Coincident", 13, 2, 14, 1))
sketch2.addConstraint(Sketcher.Constraint("Coincident", 14, 2, 15, 1))
sketch2.addConstraint(Sketcher.Constraint("Coincident", 15, 2, 16, 1))
sketch2.addConstraint(Sketcher.Constraint("Coincident", 16, 2, 17, 1))
sketch2.addConstraint(Sketcher.Constraint("Coincident", 17, 2, 18, 1))
sketch2.addConstraint(Sketcher.Constraint("Coincident", 18, 2, 19, 1))
sketch2.addConstraint(Sketcher.Constraint("Coincident", 19, 2, 20, 1))
sketch2.addConstraint(Sketcher.Constraint("Coincident", 20, 2, 21, 1))
sketch2.addConstraint(Sketcher.Constraint("Coincident", 21, 2, 22, 1))
sketch2.addConstraint(Sketcher.Constraint("Coincident", 22, 2, 23, 1))
sketch2.addConstraint(Sketcher.Constraint("Coincident", 23, 2, 24, 1))
sketch2.addConstraint(Sketcher.Constraint("Coincident", 24, 2, 25, 1))
sketch2.addConstraint(Sketcher.Constraint("Coincident", 25, 2, 26, 1))
sketch2.addConstraint(Sketcher.Constraint("Coincident", 26, 2, 27, 1))
sketch2.addConstraint(Sketcher.Constraint("Coincident", 27, 2, 28, 1))
sketch2.addConstraint(Sketcher.Constraint("Coincident", 28, 2, 29, 1))
sketch2.addConstraint(Sketcher.Constraint("Coincident", 29, 2, 30, 1))
sketch2.addConstraint(Sketcher.Constraint("Coincident", 30, 2, 31, 1))
sketch2.addConstraint(Sketcher.Constraint("Coincident", 31, 2, 32, 1))
sketch2.addConstraint(Sketcher.Constraint("Coincident", 32, 2, 33, 1))
sketch2.addConstraint(Sketcher.Constraint("Coincident", 33, 2, 34, 1))
sketch2.addConstraint(Sketcher.Constraint("Coincident", 34, 2, 35, 1))
sketch2.addConstraint(Sketcher.Constraint("Coincident", 35, 2, 36, 1))
sketch2.addConstraint(Sketcher.Constraint("Coincident", 36, 2, 37, 1))
sketch2.addConstraint(Sketcher.Constraint("Coincident", 37, 2, 38, 1))
sketch2.addConstraint(Sketcher.Constraint("Coincident", 38, 2, 39, 1))
sketch2.addConstraint(Sketcher.Constraint("Coincident", 39, 2, 40, 1))
sketch2.addConstraint(Sketcher.Constraint("Coincident", 40, 2, 41, 1))
sketch2.addConstraint(Sketcher.Constraint("Coincident", 41, 2, 42, 1))
sketch2.addConstraint(Sketcher.Constraint("Coincident", 42, 2, 43, 1))
sketch2.addConstraint(Sketcher.Constraint("Coincident", 43, 2, 44, 1))
sketch2.addConstraint(Sketcher.Constraint("Coincident", 44, 2, 45, 1))
sketch2.addConstraint(Sketcher.Constraint("Coincident", 45, 2, 46, 1))
sketch2.addConstraint(Sketcher.Constraint("Coincident", 46, 2, 47, 1))
sketch2.addConstraint(Sketcher.Constraint("Coincident", 47, 2, 48, 1))
sketch2.addConstraint(Sketcher.Constraint("Coincident", 48, 2, 49, 1))
sketch2.addConstraint(Sketcher.Constraint("Coincident", 49, 2, 50, 1))
sketch2.addConstraint(Sketcher.Constraint("Coincident", 50, 2, 51, 1))
sketch2.addConstraint(Sketcher.Constraint("Coincident", 51, 2, 0, 1))
sketch2.addConstraint(Sketcher.Constraint("Vertical", 3))
sketch2.addConstraint(Sketcher.Constraint("Vertical", 7))
sketch2.addConstraint(Sketcher.Constraint("Horizontal", 9))
sketch2.addConstraint(Sketcher.Constraint("Vertical", 11))
sketch2.addConstraint(Sketcher.Constraint("Horizontal", 12))
sketch2.addConstraint(Sketcher.Constraint("Vertical", 13))
sketch2.addConstraint(Sketcher.Constraint("Horizontal", 17))
sketch2.addConstraint(Sketcher.Constraint("Vertical", 23))
sketch2.addConstraint(Sketcher.Constraint("Horizontal", 28))
sketch2.addConstraint(Sketcher.Constraint("Horizontal", 33))
sketch2.addConstraint(Sketcher.Constraint("Vertical", 34))
sketch2.addConstraint(Sketcher.Constraint("Horizontal", 35))
sketch2.addConstraint(Sketcher.Constraint("Vertical", 36))
sketch2.addConstraint(Sketcher.Constraint("Vertical", 47))
sketch2.addConstraint(Sketcher.Constraint("Coincident", 0, 3, -1, 1))
sketch2.addConstraint(Sketcher.Constraint("Equal", 0, 1))
sketch2.addConstraint(Sketcher.Constraint("PointOnObject", 0, 2, -1))
sketch2.addConstraint(Sketcher.Constraint("PointOnObject", 37, 2, -1))
sketch2.addConstraint(Sketcher.Constraint("Parallel", 4, 8))
sketch2.addConstraint(Sketcher.Constraint("Parallel", 8, 10))
sketch2.addConstraint(Sketcher.Constraint("Perpendicular", 10, 30))
sketch2.addConstraint(Sketcher.Constraint("Perpendicular", 31, 32))
sketch2.addConstraint(Sketcher.Constraint("Perpendicular", 37, 38))
sketch2.addConstraint(Sketcher.Constraint("Perpendicular", 41, 42))
sketch2.addConstraint(Sketcher.Constraint("Horizontal", 26, 2, 29, 2))
sketch2.addConstraint(Sketcher.Constraint("Horizontal", 14, 2, 30, 2))
sketch2.addConstraint(Sketcher.Constraint("Horizontal", 13, 2, 34, 2))
sketch2.addConstraint(Sketcher.Constraint("Vertical", 18, 2, 26, 2))
sketch2.addConstraint(Sketcher.Constraint("Vertical", 36, 2, 38, 2))
sketch2.addConstraint(Sketcher.Constraint("Vertical", 34, 2, 45, 2))
sketch2.addConstraint(Sketcher.Constraint("Radius", 0, Q("67.20782 mm")))
sketch2.addConstraint(Sketcher.Constraint("DistanceY", 13, 2, 16, 2, Q("42.308 mm")))
sketch2.addConstraint(Sketcher.Constraint("DistanceX", 27, 2, 16, 2, Q("2.874001 mm")))
sketch2.addConstraint(Sketcher.Constraint("DistanceY", 40, 2, 39, 2, Q("6.785999 mm")))
sketch2.addConstraint(Sketcher.Constraint("DistanceX", 38, 2, 42, 2, Q("24.328 mm")))
sketch2.addConstraint(Sketcher.Constraint("Distance", 6, Q("23.208701 mm")))
sketch2.addConstraint(Sketcher.Constraint("Distance", 26, Q("5.107699 mm")))
sketch2.addConstraint(Sketcher.Constraint("Distance", 31, Q("5.016799 mm")))
sketch2.addConstraint(Sketcher.Constraint("DistanceX", 17, 2, 17, 1, Q("2.406142 mm")))
sketch2.addConstraint(Sketcher.Constraint("DistanceY", 7, 1, 7, 2, Q("1.173511 mm")))
sketch2.addConstraint(Sketcher.Constraint("DistanceY", 23, 1, 23, 2, Q("8.889359 mm")))
sketch2.addConstraint(Sketcher.Constraint("DistanceY", 34, 2, 34, 1, Q("2.740328 mm")))
sketch2.addConstraint(Sketcher.Constraint("DistanceX", 10, 2, -1, 1, Q("5.6498 mm")))
sketch2.addConstraint(Sketcher.Constraint("DistanceY", 49, 2, -1, 1, Q("52.8697 mm")))
sketch2.addConstraint(Sketcher.Constraint("DistanceX", 1, 2, 0, 2, Q("122.560101 mm")))
sketch2.addConstraint(Sketcher.Constraint("DistanceX", 4, 2, 5, 2, Q("8.4215 mm")))
sketch2.addConstraint(Sketcher.Constraint("DistanceX", 17, 2, 11, 2, Q("26.534402 mm")))
sketch2.addConstraint(Sketcher.Constraint("DistanceX", 18, 2, 14, 2, Q("33.886501 mm")))
sketch2.addConstraint(Sketcher.Constraint("DistanceY", 20, 2, 19, 2, Q("5.012799 mm")))
sketch2.addConstraint(Sketcher.Constraint("DistanceY", 21, 2, 20, 2, Q("3.943399 mm")))
sketch2.addConstraint(Sketcher.Constraint("DistanceX", 22, 2, 19, 2, Q("3.943399 mm")))
sketch2.addConstraint(Sketcher.Constraint("DistanceY", 22, 2, 18, 2, Q("15.2389 mm")))
sketch2.addConstraint(Sketcher.Constraint("DistanceY", 25, 2, 27, 2, Q("4.4781 mm")))
sketch2.addConstraint(Sketcher.Constraint("DistanceX", 16, 2, 29, 2, Q("3.408701 mm")))
sketch2.addConstraint(Sketcher.Constraint("DistanceY", 38, 2, 36, 2, Q("6.161802 mm")))
sketch2.addConstraint(Sketcher.Constraint("DistanceX", 4, 2, 49, 2, Q("5.043801 mm")))
sketch2.addConstraint(Sketcher.Constraint("Distance", 2, Q("5.402961 mm")))
sketch2.addConstraint(Sketcher.Constraint("Distance", 4, Q("10.012141 mm")))
sketch2.addConstraint(Sketcher.Constraint("Distance", 22, Q("2.486492 mm")))
sketch2.addConstraint(Sketcher.Constraint("Distance", 24, Q("3.856922 mm")))
sketch2.addConstraint(Sketcher.Constraint("Distance", 25, Q("4.161661 mm")))
sketch2.addConstraint(Sketcher.Constraint("Distance", 29, Q("3.361191 mm")))
sketch2.addConstraint(Sketcher.Constraint("Distance", 38, Q("4.984858 mm")))
sketch2.addConstraint(Sketcher.Constraint("Distance", 41, Q("1.188409 mm")))
sketch2.addConstraint(Sketcher.Constraint("Distance", 42, Q("9.090852 mm")))
sketch2.addConstraint(Sketcher.Constraint("Distance", 44, Q("4.467611 mm")))
sketch2.addConstraint(Sketcher.Constraint("Distance", 45, Q("35.750661 mm")))
sketch2.addConstraint(Sketcher.Constraint("Distance", 48, Q("22.647881 mm")))
sketch2.addConstraint(Sketcher.Constraint("Distance", 49, Q("32.13588 mm")))
sketch2.addConstraint(Sketcher.Constraint("Distance", 51, Q("2.518738 mm")))
sketch2.addConstraint(Sketcher.Constraint("DistanceX", 9, 1, 9, 2, Q("1.369324 mm")))
sketch2.addConstraint(Sketcher.Constraint("DistanceX", 12, 1, 12, 2, Q("0.802047 mm")))
sketch2.addConstraint(Sketcher.Constraint("DistanceX", 28, 1, 28, 2, Q("3.074513 mm")))
sketch2.addConstraint(Sketcher.Constraint("DistanceX", 33, 1, 33, 2, Q("1.804606 mm")))
sketch2.addConstraint(Sketcher.Constraint("DistanceX", 35, 1, 35, 2, Q("2.473797 mm")))
sketch2.addConstraint(Sketcher.Constraint("DistanceY", 3, 1, 3, 2, Q("3.012954 mm")))
sketch2.addConstraint(Sketcher.Constraint("DistanceY", 11, 1, 11, 2, Q("2.339305 mm")))
sketch2.addConstraint(Sketcher.Constraint("DistanceY", 13, 1, 13, 2, Q("3.542377 mm")))
sketch2.addConstraint(Sketcher.Constraint("DistanceY", 36, 2, 36, 1, Q("3.261247 mm")))
sketch2.addConstraint(Sketcher.Constraint("DistanceY", 47, 2, 47, 1, Q("2.272468 mm")))
sketch2.addConstraint(Sketcher.Constraint("DistanceY", 2, 2, -1, 1, Q("35.51409 mm")))
sketch2.addConstraint(Sketcher.Constraint("DistanceX", 6, 2, -1, 1, Q("14.18264 mm")))
sketch2.addConstraint(Sketcher.Constraint("DistanceX", 8, 2, -1, 1, Q("8.85799 mm")))
sketch2.addConstraint(Sketcher.Constraint("DistanceX", 15, 2, -1, 1, Q("27.10457 mm")))
sketch2.addConstraint(Sketcher.Constraint("DistanceX", 18, 2, -1, 1, Q("34.924529 mm")))
sketch2.addConstraint(Sketcher.Constraint("DistanceX", 19, 2, -1, 1, Q("37.397511 mm")))
sketch2.addConstraint(Sketcher.Constraint("DistanceX", 21, 2, -1, 1, Q("39.870489 mm")))
sketch2.addConstraint(Sketcher.Constraint("DistanceY", -1, 1, 24, 2, Q("43.287069 mm")))
sketch2.addConstraint(Sketcher.Constraint("DistanceX", -1, 1, 33, 2, Q("11.05952 mm")))
sketch2.addConstraint(Sketcher.Constraint("DistanceY", 39, 2, -1, 1, Q("35.29954 mm")))
sketch2.addConstraint(Sketcher.Constraint("DistanceY", 43, 2, -1, 1, Q("38.40911 mm")))
sketch2.addConstraint(Sketcher.Constraint("DistanceX", -1, 1, 44, 2, Q("32.11331 mm")))
sketch2.addConstraint(Sketcher.Constraint("DistanceY", 44, 2, -1, 1, Q("34.933571 mm")))
sketch2.addConstraint(Sketcher.Constraint("DistanceY", 48, 2, -1, 1, Q("31.458031 mm")))
sketch2.addConstraint(Sketcher.Constraint("DistanceY", 50, 2, -1, 1, Q("51.21921 mm")))
sketch2.addConstraint(Sketcher.Constraint("DistanceY", 51, 2, -1, 1, Q("52.967579 mm")))
sketch2.addConstraint(Sketcher.Constraint("DistanceY", 3, 2, 4, 2, Q("6.010079 mm")))
sketch2.addConstraint(Sketcher.Constraint("DistanceY", 14, 2, 15, 2, Q("35.950759 mm")))
sketch2.addConstraint(Sketcher.Constraint("DistanceY", 15, 2, 18, 2, Q("0.20051 mm")))
sketch2.addConstraint(Sketcher.Constraint("DistanceX", 24, 2, 19, 2, Q("3.341861 mm")))
sketch2.addConstraint(Sketcher.Constraint("DistanceX", 37, 2, 39, 2, Q("20.612881 mm")))
sketch2.addConstraint(Sketcher.Constraint("DistanceX", 38, 2, 40, 2, Q("33.36634 mm")))
sketch2.addConstraint(Sketcher.Constraint("DistanceY", 46, 2, 0, 3, Q("12.075218 mm")))
sketch2.addConstraint(Sketcher.Constraint("Distance", 20, Q("5.283955 mm")))
pad2 = body.newObject("PartDesign::Pad", "Pad001")
pad2.Profile = sketch2
pad2.setExpression("Length", "Params.pad2_length")

doc.recompute()
